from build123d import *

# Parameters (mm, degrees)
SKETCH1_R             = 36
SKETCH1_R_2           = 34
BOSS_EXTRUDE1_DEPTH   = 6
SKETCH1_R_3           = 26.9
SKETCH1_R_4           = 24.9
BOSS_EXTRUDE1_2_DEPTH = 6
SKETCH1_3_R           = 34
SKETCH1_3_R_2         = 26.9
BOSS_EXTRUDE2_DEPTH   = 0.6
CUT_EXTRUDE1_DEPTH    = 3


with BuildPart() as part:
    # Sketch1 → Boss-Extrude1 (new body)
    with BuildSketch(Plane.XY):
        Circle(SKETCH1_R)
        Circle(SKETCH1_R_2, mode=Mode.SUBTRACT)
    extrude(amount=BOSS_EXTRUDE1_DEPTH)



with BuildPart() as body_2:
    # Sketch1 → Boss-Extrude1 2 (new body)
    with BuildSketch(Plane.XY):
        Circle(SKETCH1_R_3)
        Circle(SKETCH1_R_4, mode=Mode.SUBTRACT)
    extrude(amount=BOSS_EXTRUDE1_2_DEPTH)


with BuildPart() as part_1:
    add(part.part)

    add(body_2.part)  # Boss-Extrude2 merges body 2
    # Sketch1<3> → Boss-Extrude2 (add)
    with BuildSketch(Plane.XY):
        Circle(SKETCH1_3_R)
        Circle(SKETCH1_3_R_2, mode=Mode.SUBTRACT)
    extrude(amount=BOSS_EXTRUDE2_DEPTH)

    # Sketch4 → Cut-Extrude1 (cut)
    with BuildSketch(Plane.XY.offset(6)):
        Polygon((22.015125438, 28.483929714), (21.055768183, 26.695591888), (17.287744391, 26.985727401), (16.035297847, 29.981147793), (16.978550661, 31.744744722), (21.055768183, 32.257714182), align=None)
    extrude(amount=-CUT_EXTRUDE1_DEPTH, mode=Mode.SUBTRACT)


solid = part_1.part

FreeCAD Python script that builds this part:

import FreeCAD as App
import Part
import Sketcher

V = App.Vector


def add_polygon(sketch, points):
    """Adds a closed chain of lines whose ends are joined by coincident constraints."""
    first, n = sketch.GeometryCount, len(points)
    for a, b in zip(points, points[1:] + points[:1]):
        sketch.addGeometry(Part.LineSegment(App.Vector(*a, 0), App.Vector(*b, 0)), False)
    for i in range(n):
        sketch.addConstraint(Sketcher.Constraint("Coincident", first + i, 2, first + (i + 1) % n, 1))

doc = App.newDocument("Part")
body = doc.addObject("PartDesign::Body", "Body")

# Sketch on XY plane
sketch1 = doc.addObject("Sketcher::SketchObject", "Sketch")
body.addObject(sketch1)
sketch1.AttachmentSupport = (doc.XY_Plane, [""])
sketch1.MapMode = "FlatFace"
sketch1.addGeometry([
    Part.Circle(V(0, 0, 0), V(0, 0, 1), 36),
    Part.Circle(V(0, 0, 0), V(0, 0, 1), 34),
], False)
sketch1.addConstraint([
    Sketcher.Constraint("Coincident", 0, 3, -1, 1),
    Sketcher.Constraint("Coincident", 1, 3, -1, 1),
    Sketcher.Constraint("Diameter", 0, 72.0),
    Sketcher.Constraint("Diameter", 1, 68.0),
])
pad1 = doc.addObject("PartDesign::Pad", "Pad")
body.addObject(pad1)
pad1.Profile = sketch1
pad1.Length = 6
body2 = doc.addObject("PartDesign::Body", "Body001")

# Sketch on XY plane
sketch2 = doc.addObject("Sketcher::SketchObject", "Sketch001")
body2.addObject(sketch2)
sketch2.AttachmentSupport = (doc.getObject("XY_Plane001"), [""])
sketch2.MapMode = "FlatFace"
sketch2.addGeometry([
    Part.Circle(V(0, 0, 0), V(0, 0, 1), 26.9),
    Part.Circle(V(0, 0, 0), V(0, 0, 1), 24.9),
], False)
sketch2.addConstraint([
    Sketcher.Constraint("Coincident", 0, 3, -1, 1),
    Sketcher.Constraint("Coincident", 1, 3, -1, 1),
    Sketcher.Constraint("Diameter", 0, 53.8),
    Sketcher.Constraint("Diameter", 1, 49.8),
])
pad2 = doc.addObject("PartDesign::Pad", "Pad001")
body2.addObject(pad2)
pad2.Profile = sketch2
pad2.Length = 6
body.AllowCompound = True
doc.recompute()

boolean = doc.addObject("PartDesign::Boolean", "Boolean")
body.addObject(boolean)
boolean.Type = "Fuse"
boolean.addObjects([body2])

# Sketch on XY plane
sketch3 = doc.addObject("Sketcher::SketchObject", "Sketch002")
body.addObject(sketch3)
sketch3.AttachmentSupport = (doc.XY_Plane, [""])
sketch3.MapMode = "FlatFace"
sketch3.addGeometry([
    Part.Circle(V(0, 0, 0), V(0, 0, 1), 34),
    Part.Circle(V(0, 0, 0), V(0, 0, 1), 26.9),
], False)
sketch3.addConstraint([
    Sketcher.Constraint("Coincident", 0, 3, -1, 1),
    Sketcher.Constraint("Coincident", 1, 3, -1, 1),
    Sketcher.Constraint("Diameter", 0, 68.0),
    Sketcher.Constraint("Diameter", 1, 53.8),
])
pad3 = doc.addObject("PartDesign::Pad", "Pad002")
body.addObject(pad3)
pad3.Profile = sketch3
pad3.Length = 0.6

# Sketch on XY plane
sketch4 = doc.addObject("Sketcher::SketchObject", "Sketch003")
body.addObject(sketch4)
sketch4.AttachmentSupport = (doc.XY_Plane, [""])
sketch4.MapMode = "FlatFace"
sketch4.AttachmentOffset = App.Placement(V(0, 0, 6), App.Rotation())
add_polygon(sketch4, [(21.055768, 26.695592), (22.015125, 28.48393), (21.055768, 32.257714), (16.978551, 31.744745), (16.035298, 29.981148), (17.287744, 26.985727)])  # lines 0-5
sketch4.addConstraint([
    Sketcher.Constraint("Vertical", 1, 2, 5, 2),
    Sketcher.Constraint("Distance", 3, 2.0),
    Sketcher.Constraint("Distance", 2, 4.10936),
    Sketcher.Constraint("DistanceY", -1, 1, 0, 2, 28.48393),
    Sketcher.Constraint("DistanceX", -1, 1, 1, 2, 21.055768),
    Sketcher.Constraint("DistanceX", -1, 1, 2, 2, 16.978551),
    Sketcher.Constraint("DistanceY", -1, 1, 5, 2, 26.695592),
    Sketcher.Constraint("DistanceX", 3, 2, 1, 2, 5.02047),
    Sketcher.Constraint("DistanceY", 0, 2, 3, 2, 1.497218),
    Sketcher.Constraint("DistanceY", 4, 2, 3, 2, 2.99542),
    Sketcher.Constraint("DistanceX", 4, 2, 0, 2, 4.727381),
    Sketcher.Constraint("Distance", 0, 2.029413),
])
pocket1 = doc.addObject("PartDesign::Pocket", "Pocket")
body.addObject(pocket1)
pocket1.Profile = sketch4
pocket1.Length = 3

doc.recompute()
